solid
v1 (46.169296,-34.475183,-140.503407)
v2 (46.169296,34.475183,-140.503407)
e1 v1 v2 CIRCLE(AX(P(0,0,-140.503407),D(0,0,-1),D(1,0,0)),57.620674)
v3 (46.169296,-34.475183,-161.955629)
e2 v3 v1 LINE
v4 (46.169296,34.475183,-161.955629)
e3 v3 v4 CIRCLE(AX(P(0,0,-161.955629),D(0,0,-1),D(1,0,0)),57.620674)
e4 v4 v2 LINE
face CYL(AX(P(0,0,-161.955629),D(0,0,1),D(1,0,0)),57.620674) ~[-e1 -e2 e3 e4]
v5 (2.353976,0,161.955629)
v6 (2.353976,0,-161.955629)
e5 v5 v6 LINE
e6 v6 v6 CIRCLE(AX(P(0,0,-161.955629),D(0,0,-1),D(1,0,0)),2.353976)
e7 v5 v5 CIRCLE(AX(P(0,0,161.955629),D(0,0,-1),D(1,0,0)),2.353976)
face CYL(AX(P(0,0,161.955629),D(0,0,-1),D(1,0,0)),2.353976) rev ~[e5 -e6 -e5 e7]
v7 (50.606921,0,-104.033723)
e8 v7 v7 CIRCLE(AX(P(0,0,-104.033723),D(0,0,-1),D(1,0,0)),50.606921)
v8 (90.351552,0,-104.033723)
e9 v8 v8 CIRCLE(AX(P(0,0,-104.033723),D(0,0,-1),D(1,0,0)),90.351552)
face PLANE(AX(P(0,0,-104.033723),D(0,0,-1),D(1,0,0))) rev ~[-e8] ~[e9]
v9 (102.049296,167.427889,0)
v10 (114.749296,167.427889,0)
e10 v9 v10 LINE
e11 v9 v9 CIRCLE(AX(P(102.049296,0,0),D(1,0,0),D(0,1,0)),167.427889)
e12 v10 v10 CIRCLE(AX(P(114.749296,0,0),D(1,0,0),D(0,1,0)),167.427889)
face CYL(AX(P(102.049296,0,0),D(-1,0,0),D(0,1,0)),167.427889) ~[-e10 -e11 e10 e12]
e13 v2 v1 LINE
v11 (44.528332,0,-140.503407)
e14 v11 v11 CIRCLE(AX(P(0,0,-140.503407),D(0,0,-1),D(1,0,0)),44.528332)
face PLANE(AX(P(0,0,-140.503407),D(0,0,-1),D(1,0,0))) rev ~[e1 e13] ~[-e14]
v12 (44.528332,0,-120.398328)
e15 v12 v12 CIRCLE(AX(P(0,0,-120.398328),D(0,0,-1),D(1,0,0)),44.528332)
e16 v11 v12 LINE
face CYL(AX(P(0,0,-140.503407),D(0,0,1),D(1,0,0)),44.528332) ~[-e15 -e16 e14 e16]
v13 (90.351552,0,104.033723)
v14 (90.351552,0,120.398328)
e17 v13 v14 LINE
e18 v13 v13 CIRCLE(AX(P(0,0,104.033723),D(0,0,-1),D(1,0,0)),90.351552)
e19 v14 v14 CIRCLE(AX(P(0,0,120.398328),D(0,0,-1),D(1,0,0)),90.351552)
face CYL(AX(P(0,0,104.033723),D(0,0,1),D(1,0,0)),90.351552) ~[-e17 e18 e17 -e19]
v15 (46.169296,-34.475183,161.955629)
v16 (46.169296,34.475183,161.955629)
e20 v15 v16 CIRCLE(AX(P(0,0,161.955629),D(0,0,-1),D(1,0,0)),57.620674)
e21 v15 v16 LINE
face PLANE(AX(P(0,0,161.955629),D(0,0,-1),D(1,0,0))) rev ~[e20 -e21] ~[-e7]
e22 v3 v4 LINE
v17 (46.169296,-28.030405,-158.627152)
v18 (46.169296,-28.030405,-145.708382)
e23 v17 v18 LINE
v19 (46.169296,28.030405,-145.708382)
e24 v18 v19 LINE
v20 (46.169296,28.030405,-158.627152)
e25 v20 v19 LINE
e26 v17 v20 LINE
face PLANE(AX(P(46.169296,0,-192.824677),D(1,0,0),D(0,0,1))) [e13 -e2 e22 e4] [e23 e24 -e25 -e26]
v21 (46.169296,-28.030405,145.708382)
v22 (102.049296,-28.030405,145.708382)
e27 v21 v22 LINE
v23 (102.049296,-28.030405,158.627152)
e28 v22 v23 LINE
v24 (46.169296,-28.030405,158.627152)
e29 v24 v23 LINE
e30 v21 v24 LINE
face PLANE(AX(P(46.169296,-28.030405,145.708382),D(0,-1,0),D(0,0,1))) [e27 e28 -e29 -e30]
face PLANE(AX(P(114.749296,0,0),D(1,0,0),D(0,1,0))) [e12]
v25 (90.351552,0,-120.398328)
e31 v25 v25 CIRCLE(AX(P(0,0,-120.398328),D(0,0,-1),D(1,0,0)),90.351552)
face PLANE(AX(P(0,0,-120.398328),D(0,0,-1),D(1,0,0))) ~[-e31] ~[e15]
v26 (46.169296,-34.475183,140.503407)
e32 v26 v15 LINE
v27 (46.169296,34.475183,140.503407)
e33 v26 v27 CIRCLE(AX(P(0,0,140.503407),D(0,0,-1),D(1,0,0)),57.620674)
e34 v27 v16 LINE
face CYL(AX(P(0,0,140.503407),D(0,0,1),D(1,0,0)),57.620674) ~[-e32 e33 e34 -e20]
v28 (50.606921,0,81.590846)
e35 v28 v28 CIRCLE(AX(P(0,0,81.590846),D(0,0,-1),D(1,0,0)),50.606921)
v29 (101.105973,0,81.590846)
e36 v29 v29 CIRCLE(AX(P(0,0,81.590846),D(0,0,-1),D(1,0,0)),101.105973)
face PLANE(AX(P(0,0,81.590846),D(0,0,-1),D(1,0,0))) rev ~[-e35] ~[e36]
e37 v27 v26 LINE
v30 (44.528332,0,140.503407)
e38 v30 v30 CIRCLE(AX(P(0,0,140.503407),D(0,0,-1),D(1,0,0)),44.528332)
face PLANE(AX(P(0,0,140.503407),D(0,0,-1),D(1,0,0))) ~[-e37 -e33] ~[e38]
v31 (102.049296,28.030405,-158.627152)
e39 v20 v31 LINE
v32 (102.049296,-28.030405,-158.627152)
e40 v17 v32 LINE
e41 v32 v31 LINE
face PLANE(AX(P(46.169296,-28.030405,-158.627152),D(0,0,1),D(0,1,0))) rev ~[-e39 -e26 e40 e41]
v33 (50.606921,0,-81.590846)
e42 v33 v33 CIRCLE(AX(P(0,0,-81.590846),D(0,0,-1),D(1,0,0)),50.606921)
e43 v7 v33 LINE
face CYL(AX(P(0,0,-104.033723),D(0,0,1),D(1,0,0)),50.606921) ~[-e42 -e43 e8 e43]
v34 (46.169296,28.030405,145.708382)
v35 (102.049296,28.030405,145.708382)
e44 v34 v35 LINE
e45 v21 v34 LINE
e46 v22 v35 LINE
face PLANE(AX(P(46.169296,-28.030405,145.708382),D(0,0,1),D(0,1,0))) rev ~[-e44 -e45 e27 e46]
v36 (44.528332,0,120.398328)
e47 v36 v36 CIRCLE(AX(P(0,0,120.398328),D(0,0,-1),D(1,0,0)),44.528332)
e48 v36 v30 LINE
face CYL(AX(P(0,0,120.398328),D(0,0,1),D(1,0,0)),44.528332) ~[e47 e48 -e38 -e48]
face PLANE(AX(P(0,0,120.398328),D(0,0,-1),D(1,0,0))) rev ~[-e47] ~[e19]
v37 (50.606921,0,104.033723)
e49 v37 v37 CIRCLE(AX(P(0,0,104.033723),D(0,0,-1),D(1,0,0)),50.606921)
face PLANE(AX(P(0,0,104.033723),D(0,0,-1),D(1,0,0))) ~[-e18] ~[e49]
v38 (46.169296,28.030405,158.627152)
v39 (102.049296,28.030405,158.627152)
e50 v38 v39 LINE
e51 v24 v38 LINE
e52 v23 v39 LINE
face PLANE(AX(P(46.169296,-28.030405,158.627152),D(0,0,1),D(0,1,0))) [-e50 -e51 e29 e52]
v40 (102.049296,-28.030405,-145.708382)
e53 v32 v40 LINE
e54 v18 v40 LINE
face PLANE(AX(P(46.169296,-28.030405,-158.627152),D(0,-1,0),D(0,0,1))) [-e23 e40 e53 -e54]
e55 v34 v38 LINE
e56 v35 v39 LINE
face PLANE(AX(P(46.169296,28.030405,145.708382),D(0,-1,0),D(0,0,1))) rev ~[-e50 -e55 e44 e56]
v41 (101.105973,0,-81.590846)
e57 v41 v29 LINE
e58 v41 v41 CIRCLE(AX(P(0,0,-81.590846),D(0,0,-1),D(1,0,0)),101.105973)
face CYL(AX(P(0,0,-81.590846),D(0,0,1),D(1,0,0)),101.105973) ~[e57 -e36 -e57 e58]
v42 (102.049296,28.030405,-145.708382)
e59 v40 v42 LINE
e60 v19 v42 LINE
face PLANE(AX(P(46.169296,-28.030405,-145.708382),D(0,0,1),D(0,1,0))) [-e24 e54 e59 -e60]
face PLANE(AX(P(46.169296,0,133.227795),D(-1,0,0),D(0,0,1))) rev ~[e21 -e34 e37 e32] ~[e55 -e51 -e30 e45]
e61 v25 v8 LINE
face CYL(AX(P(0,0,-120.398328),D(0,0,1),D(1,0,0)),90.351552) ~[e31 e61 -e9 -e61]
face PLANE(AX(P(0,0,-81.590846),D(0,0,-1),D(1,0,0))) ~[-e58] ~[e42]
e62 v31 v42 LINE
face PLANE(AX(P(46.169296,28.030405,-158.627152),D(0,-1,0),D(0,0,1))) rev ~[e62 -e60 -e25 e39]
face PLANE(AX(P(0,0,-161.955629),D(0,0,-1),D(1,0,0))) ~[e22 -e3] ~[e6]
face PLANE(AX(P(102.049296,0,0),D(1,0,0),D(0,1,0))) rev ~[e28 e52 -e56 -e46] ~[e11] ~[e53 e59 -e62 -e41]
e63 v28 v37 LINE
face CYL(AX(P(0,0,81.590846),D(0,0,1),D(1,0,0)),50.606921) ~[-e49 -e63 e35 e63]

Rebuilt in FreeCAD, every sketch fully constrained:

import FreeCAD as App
import Part
import Sketcher
Q = App.Units.Quantity


def add_polygon(sketch, points):
    """Adds a closed chain of lines whose ends are joined by coincident constraints."""
    first, n = sketch.GeometryCount, len(points)
    for a, b in zip(points, points[1:] + points[:1]):
        sketch.addGeometry(Part.LineSegment(App.Vector(*a, 0), App.Vector(*b, 0)), False)
    for i in range(n):
        sketch.addConstraint(Sketcher.Constraint("Coincident", first + i, 2, first + (i + 1) % n, 1))

doc = App.newDocument("Part")
body = doc.addObject("PartDesign::Body", "Body")

sketch1 = body.newObject("Sketcher::SketchObject", "Sketch")
sketch1.AttachmentSupport = (doc.getObject("XZ_Plane"), [""])
sketch1.MapMode = "FlatFace"
add_polygon(sketch1, [(2, 162), (2, -162), (58, -162), (58, -141), (45, -141), (45, -120), (90, -120), (90, -104), (51, -104), (51, -82), (101, -82), (101, 82), (51, 82), (51, 104), (90, 104), (90, 120), (45, 120), (45, 141), (58, 141), (58, 162)])
sketch1.addConstraint(Sketcher.Constraint("Vertical", 0))
sketch1.addConstraint(Sketcher.Constraint("Horizontal", 1))
sketch1.addConstraint(Sketcher.Constraint("Vertical", 2))
sketch1.addConstraint(Sketcher.Constraint("Horizontal", 3))
sketch1.addConstraint(Sketcher.Constraint("Vertical", 4))
sketch1.addConstraint(Sketcher.Constraint("Horizontal", 5))
sketch1.addConstraint(Sketcher.Constraint("Vertical", 6))
sketch1.addConstraint(Sketcher.Constraint("Horizontal", 7))
sketch1.addConstraint(Sketcher.Constraint("Vertical", 8))
sketch1.addConstraint(Sketcher.Constraint("Horizontal", 9))
sketch1.addConstraint(Sketcher.Constraint("Vertical", 10))
sketch1.addConstraint(Sketcher.Constraint("Horizontal", 11))
sketch1.addConstraint(Sketcher.Constraint("Vertical", 12))
sketch1.addConstraint(Sketcher.Constraint("Horizontal", 13))
sketch1.addConstraint(Sketcher.Constraint("Vertical", 14))
sketch1.addConstraint(Sketcher.Constraint("Horizontal", 15))
sketch1.addConstraint(Sketcher.Constraint("Vertical", 16))
sketch1.addConstraint(Sketcher.Constraint("Horizontal", 17))
sketch1.addConstraint(Sketcher.Constraint("Vertical", 18))
sketch1.addConstraint(Sketcher.Constraint("Horizontal", 19))
sketch1.addConstraint(Sketcher.Constraint("Symmetric", 8, 2, 11, 2, -1))
sketch1.addConstraint(Sketcher.Constraint("Symmetric", 6, 2, 13, 2, -1))
sketch1.addConstraint(Sketcher.Constraint("Symmetric", 4, 2, 15, 2, -1))
sketch1.addConstraint(Sketcher.Constraint("Symmetric", 2, 2, 17, 2, -1))
sketch1.addConstraint(Sketcher.Constraint("Equal", 2, 18))
sketch1.addConstraint(Sketcher.Constraint("DistanceX", 1, 1, 1, 2, Q("55.266699 mm")))
sketch1.addConstraint(Sketcher.Constraint("DistanceX", 5, 1, 5, 2, Q("45.82322 mm")))
sketch1.addConstraint(Sketcher.Constraint("DistanceX", 7, 2, 7, 1, Q("39.74463 mm")))
sketch1.addConstraint(Sketcher.Constraint("DistanceX", 9, 1, 9, 2, Q("50.499052 mm")))
sketch1.addConstraint(Sketcher.Constraint("DistanceY", 4, 1, 4, 2, Q("20.105079 mm")))
sketch1.addConstraint(Sketcher.Constraint("DistanceY", 1, 2, 4, 2, Q("41.557301 mm")))
sketch1.addConstraint(Sketcher.Constraint("DistanceX", 3, 2, 3, 1, Q("13.092343 mm")))
sketch1.addConstraint(Sketcher.Constraint("DistanceY", 0, 2, 0, 1, Q("323.911258 mm")))
sketch1.addConstraint(Sketcher.Constraint("DistanceY", 6, 1, 6, 2, Q("16.364604 mm")))
sketch1.addConstraint(Sketcher.Constraint("DistanceY", 8, 1, 8, 2, Q("22.442877 mm")))
sketch1.addConstraint(Sketcher.Constraint("DistanceX", -1, 1, 3, 2, Q("44.528332 mm")))
revolution = body.newObject("PartDesign::Revolution", "Revolution")
revolution.Profile = sketch1
revolution.ReferenceAxis = (sketch1, ["V_Axis"])
revolution.Angle = 360

sketch2 = body.newObject("Sketcher::SketchObject", "Sketch001")
sketch2.AttachmentSupport = (doc.getObject("XZ_Plane"), [""])
sketch2.MapMode = "FlatFace"
add_polygon(sketch2, [(46, 193), (46, 133), (116, 133), (116, 193)])
add_polygon(sketch2, [(46, -133), (46, -193), (116, -193), (116, -133)])
sketch2.addConstraint(Sketcher.Constraint("Vertical", 0))
sketch2.addConstraint(Sketcher.Constraint("Horizontal", 1))
sketch2.addConstraint(Sketcher.Constraint("Vertical", 2))
sketch2.addConstraint(Sketcher.Constraint("Horizontal", 3))
sketch2.addConstraint(Sketcher.Constraint("Vertical", 4))
sketch2.addConstraint(Sketcher.Constraint("Horizontal", 5))
sketch2.addConstraint(Sketcher.Constraint("Vertical", 6))
sketch2.addConstraint(Sketcher.Constraint("Horizontal", 7))
sketch2.addConstraint(Sketcher.Constraint("Symmetric", 3, 2, 4, 2, -1))
sketch2.addConstraint(Sketcher.Constraint("Symmetric", 1, 2, 6, 2, -1))
sketch2.addConstraint(Sketcher.Constraint("DistanceX", 1, 1, 1, 2, Q("69.451071 mm")))
sketch2.addConstraint(Sketcher.Constraint("DistanceY", 0, 2, 0, 1, Q("59.596881 mm")))
sketch2.addConstraint(Sketcher.Constraint("DistanceY", 4, 2, 0, 2, Q("326.052472 mm")))
sketch2.addConstraint(Sketcher.Constraint("DistanceX", -1, 1, 0, 2, Q("46.169296 mm")))
pocket1 = body.newObject("PartDesign::Pocket", "Pocket")
pocket1.Profile = sketch2
pocket1.Length = Q("10 in")
pocket1.Midplane = True

sketch3 = body.newObject("Sketcher::SketchObject", "Sketch002")
sketch3.AttachmentSupport = (doc.getObject("YZ_Plane"), [""])
sketch3.MapMode = "FlatFace"
sketch3.AttachmentOffset = App.Placement(App.Vector(0, 0, 46.169296), App.Rotation())
add_polygon(sketch3, [(-28, 159), (-28, 146), (28, 146), (28, 159)])
add_polygon(sketch3, [(-28, -146), (-28, -159), (28, -159), (28, -146)])
sketch3.addConstraint(Sketcher.Constraint("Vertical", 0))
sketch3.addConstraint(Sketcher.Constraint("Horizontal", 1))
sketch3.addConstraint(Sketcher.Constraint("Vertical", 2))
sketch3.addConstraint(Sketcher.Constraint("Horizontal", 3))
sketch3.addConstraint(Sketcher.Constraint("Vertical", 4))
sketch3.addConstraint(Sketcher.Constraint("Horizontal", 5))
sketch3.addConstraint(Sketcher.Constraint("Vertical", 6))
sketch3.addConstraint(Sketcher.Constraint("Horizontal", 7))
sketch3.addConstraint(Sketcher.Constraint("Symmetric", 2, 2, 4, 2, -1, 1))
sketch3.addConstraint(Sketcher.Constraint("Symmetric", 0, 2, 6, 2, -1, 1))
sketch3.addConstraint(Sketcher.Constraint("Vertical", 3, 2, 4, 2))
sketch3.addConstraint(Sketcher.Constraint("DistanceX", 1, 1, 1, 2, Q("56.06081 mm")))
sketch3.addConstraint(Sketcher.Constraint("DistanceY", 0, 2, 0, 1, Q("12.91877 mm")))
sketch3.addConstraint(Sketcher.Constraint("DistanceY", -1, 1, 0, 2, Q("145.708382 mm")))
pad1 = body.newObject("PartDesign::Pad", "Pad")
pad1.Profile = sketch3
pad1.Length = Q("2.2 in")

sketch4 = body.newObject("Sketcher::SketchObject", "Sketch003")
sketch4.AttachmentSupport = (doc.getObject("YZ_Plane"), [""])
sketch4.MapMode = "FlatFace"
sketch4.AttachmentOffset = App.Placement(App.Vector(0, 0, 102.049296), App.Rotation())
sketch4.addGeometry(Part.Circle(App.Vector(0, 0, 0), App.Vector(0, 0, 1), 167), False)
sketch4.addConstraint(Sketcher.Constraint("Coincident", 0, 3, -1, 1))
sketch4.addConstraint(Sketcher.Constraint("Diameter", 0, Q("334.855777 mm")))
pad2 = body.newObject("PartDesign::Pad", "Pad001")
pad2.Profile = sketch4
pad2.Length = Q("0.5 in")

doc.recompute()
